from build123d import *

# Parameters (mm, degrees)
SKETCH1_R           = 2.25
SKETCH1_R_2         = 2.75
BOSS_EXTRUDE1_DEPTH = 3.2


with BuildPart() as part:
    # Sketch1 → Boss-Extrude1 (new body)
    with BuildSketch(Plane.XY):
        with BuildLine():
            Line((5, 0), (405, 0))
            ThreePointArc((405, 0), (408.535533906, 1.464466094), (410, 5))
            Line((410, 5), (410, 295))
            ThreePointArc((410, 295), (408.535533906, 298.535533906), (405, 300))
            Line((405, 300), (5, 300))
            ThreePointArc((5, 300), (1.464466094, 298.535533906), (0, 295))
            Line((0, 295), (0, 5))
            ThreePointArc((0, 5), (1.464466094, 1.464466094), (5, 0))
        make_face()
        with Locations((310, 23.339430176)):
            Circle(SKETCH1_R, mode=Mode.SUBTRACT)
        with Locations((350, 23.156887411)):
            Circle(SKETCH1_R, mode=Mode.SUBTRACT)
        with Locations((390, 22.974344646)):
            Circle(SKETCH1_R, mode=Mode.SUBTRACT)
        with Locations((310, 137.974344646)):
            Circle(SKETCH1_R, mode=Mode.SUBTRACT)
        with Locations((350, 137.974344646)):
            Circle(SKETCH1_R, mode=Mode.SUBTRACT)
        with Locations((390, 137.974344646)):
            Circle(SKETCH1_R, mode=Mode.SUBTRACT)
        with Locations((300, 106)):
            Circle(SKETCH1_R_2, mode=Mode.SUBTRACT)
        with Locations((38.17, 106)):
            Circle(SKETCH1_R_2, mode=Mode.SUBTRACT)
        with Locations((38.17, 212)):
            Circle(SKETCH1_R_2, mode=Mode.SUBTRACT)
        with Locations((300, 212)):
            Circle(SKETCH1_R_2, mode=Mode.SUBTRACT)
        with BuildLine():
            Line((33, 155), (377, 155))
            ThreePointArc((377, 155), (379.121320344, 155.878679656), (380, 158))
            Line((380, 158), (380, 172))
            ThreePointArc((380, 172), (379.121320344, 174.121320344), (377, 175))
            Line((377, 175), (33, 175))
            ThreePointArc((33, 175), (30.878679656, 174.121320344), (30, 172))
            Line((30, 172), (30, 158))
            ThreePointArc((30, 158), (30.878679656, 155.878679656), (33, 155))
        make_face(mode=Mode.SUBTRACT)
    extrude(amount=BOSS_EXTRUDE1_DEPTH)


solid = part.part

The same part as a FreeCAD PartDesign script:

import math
import FreeCAD as App
import Part
import Sketcher
Q = App.Units.Quantity

doc = App.newDocument("Part")
body = doc.addObject("PartDesign::Body", "Body")

# Sketch on XY plane
sketch1 = doc.addObject("Sketcher::SketchObject", "Sketch")
body.addObject(sketch1)
sketch1.AttachmentSupport = (doc.XY_Plane, [""])
sketch1.MapMode = "FlatFace"
sketch1.addGeometry([
    Part.LineSegment(App.Vector(5, 0, 0), App.Vector(405, 0, 0)),  # 0
    Part.ArcOfCircle(Part.Circle(App.Vector(405, 5, 0), App.Vector(0, 0, 1), 5), math.radians(-90), math.radians(0)),  # 1
    Part.LineSegment(App.Vector(410, 5, 0), App.Vector(410, 295, 0)),  # 2
    Part.ArcOfCircle(Part.Circle(App.Vector(405, 295, 0), App.Vector(0, 0, 1), 5), math.radians(0), math.radians(90)),  # 3
    Part.LineSegment(App.Vector(405, 300, 0), App.Vector(5, 300, 0)),  # 4
    Part.ArcOfCircle(Part.Circle(App.Vector(5, 295, 0), App.Vector(0, 0, 1), 5), math.radians(90), math.radians(180)),  # 5
    Part.LineSegment(App.Vector(0, 295, 0), App.Vector(0, 5, 0)),  # 6
    Part.ArcOfCircle(Part.Circle(App.Vector(5, 5, 0), App.Vector(0, 0, 1), 5), math.radians(180), math.radians(270)),  # 7
    Part.Circle(App.Vector(38.17, 106, 0), App.Vector(0, 0, 1), 2.75),  # 8
    Part.Circle(App.Vector(310, 23.33943, 0), App.Vector(0, 0, 1), 2.25),  # 9
    Part.Circle(App.Vector(350, 23.156887, 0), App.Vector(0, 0, 1), 2.25),  # 10
    Part.Circle(App.Vector(390, 22.974345, 0), App.Vector(0, 0, 1), 2.25),  # 11
    Part.Circle(App.Vector(300, 106, 0), App.Vector(0, 0, 1), 2.75),  # 12
    Part.LineSegment(App.Vector(377, 155, 0), App.Vector(33, 155, 0)),  # 13
    Part.ArcOfCircle(Part.Circle(App.Vector(33, 158, 0), App.Vector(0, 0, 1), 3), math.radians(180), math.radians(270)),  # 14
    Part.LineSegment(App.Vector(30, 158, 0), App.Vector(30, 172, 0)),  # 15
    Part.ArcOfCircle(Part.Circle(App.Vector(33, 172, 0), App.Vector(0, 0, 1), 3), math.radians(90), math.radians(180)),  # 16
    Part.LineSegment(App.Vector(33, 175, 0), App.Vector(377, 175, 0)),  # 17
    Part.ArcOfCircle(Part.Circle(App.Vector(377, 172, 0), App.Vector(0, 0, 1), 3), math.radians(0), math.radians(90)),  # 18
    Part.LineSegment(App.Vector(380, 172, 0), App.Vector(380, 158, 0)),  # 19
    Part.ArcOfCircle(Part.Circle(App.Vector(377, 158, 0), App.Vector(0, 0, 1), 3), math.radians(-90), math.radians(0)),  # 20
    Part.Circle(App.Vector(38.17, 212, 0), App.Vector(0, 0, 1), 2.75),  # 21
    Part.Circle(App.Vector(310, 137.974345, 0), App.Vector(0, 0, 1), 2.25),  # 22
    Part.Circle(App.Vector(350, 137.974345, 0), App.Vector(0, 0, 1), 2.25),  # 23
    Part.Circle(App.Vector(390, 137.974345, 0), App.Vector(0, 0, 1), 2.25),  # 24
    Part.Circle(App.Vector(300, 212, 0), App.Vector(0, 0, 1), 2.75),  # 25
], False)
sketch1.addConstraint([
    Sketcher.Constraint("Tangent", 0, 2, 1, 1),
    Sketcher.Constraint("Tangent", 1, 2, 2, 1),
    Sketcher.Constraint("Tangent", 2, 2, 3, 1),
    Sketcher.Constraint("Tangent", 3, 2, 4, 1),
    Sketcher.Constraint("Tangent", 4, 2, 5, 1),
    Sketcher.Constraint("Tangent", 5, 2, 6, 1),
    Sketcher.Constraint("Tangent", 6, 2, 7, 1),
    Sketcher.Constraint("Tangent", 7, 2, 0, 1),
    Sketcher.Constraint("Tangent", 13, 2, 14, 2),
    Sketcher.Constraint("Tangent", 14, 1, 15, 1),
    Sketcher.Constraint("Tangent", 15, 2, 16, 2),
    Sketcher.Constraint("Tangent", 16, 1, 17, 1),
    Sketcher.Constraint("Tangent", 17, 2, 18, 2),
    Sketcher.Constraint("Tangent", 18, 1, 19, 1),
    Sketcher.Constraint("Tangent", 19, 2, 20, 2),
    Sketcher.Constraint("Tangent", 20, 1, 13, 1),
    Sketcher.Constraint("Horizontal", 0),
    Sketcher.Constraint("Vertical", 2),
    Sketcher.Constraint("Horizontal", 4),
    Sketcher.Constraint("Vertical", 6),
    Sketcher.Constraint("Horizontal", 13),
    Sketcher.Constraint("Vertical", 15),
    Sketcher.Constraint("Horizontal", 17),
    Sketcher.Constraint("Vertical", 19),
    Sketcher.Constraint("Equal", 1, 3),
    Sketcher.Constraint("Equal", 3, 5),
    Sketcher.Constraint("Equal", 5, 7),
    Sketcher.Constraint("Equal", 9, 10),
    Sketcher.Constraint("Equal", 10, 11),
    Sketcher.Constraint("Equal", 8, 12),
    Sketcher.Constraint("Equal", 14, 16),
    Sketcher.Constraint("Equal", 16, 18),
    Sketcher.Constraint("Equal", 18, 20),
    Sketcher.Constraint("Equal", 12, 21),
    Sketcher.Constraint("Equal", 11, 22),
    Sketcher.Constraint("Equal", 22, 23),
    Sketcher.Constraint("Equal", 23, 24),
    Sketcher.Constraint("Equal", 21, 25),
    Sketcher.Constraint("PointOnObject", 0, 2, -1),
    Sketcher.Constraint("PointOnObject", 5, 2, -2),
    Sketcher.Constraint("Horizontal", 8, 3, 12, 3),
    Sketcher.Constraint("Horizontal", 22, 3, 23, 3),
    Sketcher.Constraint("Horizontal", 23, 3, 24, 3),
    Sketcher.Constraint("Horizontal", 21, 3, 25, 3),
    Sketcher.Constraint("Vertical", 8, 3, 21, 3),
    Sketcher.Constraint("Vertical", 9, 3, 22, 3),
    Sketcher.Constraint("Vertical", 10, 3, 23, 3),
    Sketcher.Constraint("Vertical", 11, 3, 24, 3),
    Sketcher.Constraint("Vertical", 12, 3, 25, 3),
    Sketcher.Constraint("Radius", 1, Q("5 mm")),
    Sketcher.Constraint("Radius", 14, Q("3 mm")),
    Sketcher.Constraint("Diameter", 8, Q("5.5 mm")),
    Sketcher.Constraint("Diameter", 9, Q("4.5 mm")),
    Sketcher.Constraint("DistanceX", 0, 1, 0, 2, Q("400 mm")),
    Sketcher.Constraint("DistanceX", 13, 2, 13, 1, Q("344 mm")),
    Sketcher.Constraint("DistanceY", 2, 1, 2, 2, Q("290 mm")),
    Sketcher.Constraint("DistanceY", 15, 1, 15, 2, Q("14 mm")),
    Sketcher.Constraint("DistanceY", -1, 1, 8, 3, Q("106 mm")),
    Sketcher.Constraint("DistanceX", -1, 1, 9, 3, Q("310 mm")),
    Sketcher.Constraint("DistanceX", -1, 1, 10, 3, Q("350 mm")),
    Sketcher.Constraint("DistanceX", -1, 1, 11, 3, Q("390 mm")),
    Sketcher.Constraint("DistanceX", -1, 1, 12, 3, Q("300 mm")),
    Sketcher.Constraint("DistanceX", -1, 1, 14, 3, Q("33 mm")),
    Sketcher.Constraint("DistanceY", -1, 1, 14, 3, Q("158 mm")),
    Sketcher.Constraint("DistanceY", -1, 1, 21, 3, Q("212 mm")),
    Sketcher.Constraint("DistanceX", -1, 1, 8, 3, Q("38.17 mm")),
    Sketcher.Constraint("DistanceY", -1, 1, 9, 3, Q("23.33943 mm")),
    Sketcher.Constraint("DistanceY", -1, 1, 10, 3, Q("23.156887 mm")),
    Sketcher.Constraint("DistanceY", -1, 1, 11, 3, Q("22.974345 mm")),
    Sketcher.Constraint("DistanceY", -1, 1, 22, 3, Q("137.974345 mm")),
])
pad1 = doc.addObject("PartDesign::Pad", "Pad")
body.addObject(pad1)
pad1.Profile = sketch1
pad1.Length = 3.2

doc.recompute()
